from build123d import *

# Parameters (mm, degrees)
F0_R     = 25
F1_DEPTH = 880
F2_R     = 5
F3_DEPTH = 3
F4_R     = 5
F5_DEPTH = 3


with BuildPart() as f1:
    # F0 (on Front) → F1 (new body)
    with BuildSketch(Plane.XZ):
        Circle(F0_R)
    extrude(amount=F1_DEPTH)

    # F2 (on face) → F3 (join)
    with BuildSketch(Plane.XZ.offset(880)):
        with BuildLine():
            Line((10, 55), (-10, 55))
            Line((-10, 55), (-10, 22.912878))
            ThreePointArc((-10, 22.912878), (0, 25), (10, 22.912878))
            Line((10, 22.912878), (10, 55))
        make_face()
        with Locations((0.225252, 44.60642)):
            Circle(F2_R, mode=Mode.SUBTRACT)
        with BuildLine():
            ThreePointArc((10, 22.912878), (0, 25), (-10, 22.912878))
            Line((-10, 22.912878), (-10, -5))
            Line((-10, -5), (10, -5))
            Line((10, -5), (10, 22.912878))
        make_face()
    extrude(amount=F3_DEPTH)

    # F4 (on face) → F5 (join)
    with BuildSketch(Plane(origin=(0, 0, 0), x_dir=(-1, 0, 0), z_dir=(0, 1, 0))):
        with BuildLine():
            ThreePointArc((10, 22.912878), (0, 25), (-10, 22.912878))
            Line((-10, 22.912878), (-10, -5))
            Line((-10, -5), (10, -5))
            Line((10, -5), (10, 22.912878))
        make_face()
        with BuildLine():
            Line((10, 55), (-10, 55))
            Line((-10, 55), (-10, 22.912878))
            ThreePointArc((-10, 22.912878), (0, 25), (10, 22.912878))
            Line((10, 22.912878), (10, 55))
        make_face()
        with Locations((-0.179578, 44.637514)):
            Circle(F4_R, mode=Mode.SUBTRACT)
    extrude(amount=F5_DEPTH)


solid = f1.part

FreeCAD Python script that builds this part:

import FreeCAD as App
import Part
import Sketcher
from FreeCAD import Vector
Q = App.Units.Quantity

doc = App.newDocument("Part")
body = doc.addObject("PartDesign::Body", "Body")

sketch1 = body.newObject("Sketcher::SketchObject", "Sketch")
sketch1.AttachmentSupport = (doc.getObject("XZ_Plane"), [""])
sketch1.MapMode = "FlatFace"
sketch1.addGeometry(Part.Circle(Vector(0, 0, 0), Vector(0, 0, 1), 25), False)
sketch1.addConstraint([
    Sketcher.Constraint("Coincident", 0, 3, -1, 1),
    Sketcher.Constraint("Diameter", 0, Q("50 mm")),
])
pad1 = body.newObject("PartDesign::Pad", "Pad")
pad1.Profile = sketch1
pad1.Length = 880

sketch2 = body.newObject("Sketcher::SketchObject", "Sketch001")
sketch2.AttachmentSupport = (doc.getObject("XZ_Plane"), [""])
sketch2.MapMode = "FlatFace"
sketch2.AttachmentOffset = App.Placement(Vector(0, 0, 880), App.Rotation())
sketch2.addGeometry([
    Part.LineSegment(Vector(10, 55, 0), Vector(-10, 55, 0)),
    Part.LineSegment(Vector(-10, 55, 0), Vector(-10, -5, 0)),
    Part.LineSegment(Vector(-10, -5, 0), Vector(10, -5, 0)),
    Part.LineSegment(Vector(10, -5, 0), Vector(10, 55, 0)),
    Part.Circle(Vector(0.225252, 44.60642, 0), Vector(0, 0, 1), 5),
], False)
sketch2.addConstraint([
    Sketcher.Constraint("Coincident", 0, 2, 1, 1),
    Sketcher.Constraint("Coincident", 1, 2, 2, 1),
    Sketcher.Constraint("Coincident", 2, 2, 3, 1),
    Sketcher.Constraint("Coincident", 3, 2, 0, 1),
    Sketcher.Constraint("Horizontal", 0),
    Sketcher.Constraint("Vertical", 1),
    Sketcher.Constraint("Horizontal", 2),
    Sketcher.Constraint("Vertical", 3),
    Sketcher.Constraint("Diameter", 4, Q("10 mm")),
    Sketcher.Constraint("DistanceX", 0, 2, 0, 1, Q("20 mm")),
    Sketcher.Constraint("DistanceY", 1, 2, 1, 1, Q("60 mm")),
    Sketcher.Constraint("DistanceX", 0, 2, -1, 1, Q("10 mm")),
    Sketcher.Constraint("DistanceY", -1, 1, 0, 2, Q("55 mm")),
    Sketcher.Constraint("DistanceY", -1, 1, 4, 3, Q("44.60642 mm")),
    Sketcher.Constraint("DistanceX", 0, 2, 4, 3, Q("10.225252 mm")),
])
pad2 = body.newObject("PartDesign::Pad", "Pad001")
pad2.Profile = sketch2
pad2.Length = 3

sketch3 = body.newObject("Sketcher::SketchObject", "Sketch002")
sketch3.AttachmentSupport = (doc.getObject("XZ_Plane"), [""])
sketch3.MapMode = "FlatFace"
sketch3.addGeometry([
    Part.LineSegment(Vector(10, -5, 0), Vector(-10, -5, 0)),
    Part.LineSegment(Vector(-10, -5, 0), Vector(-10, 55, 0)),
    Part.LineSegment(Vector(-10, 55, 0), Vector(10, 55, 0)),
    Part.LineSegment(Vector(10, 55, 0), Vector(10, -5, 0)),
    Part.Circle(Vector(0.179578, 44.637514, 0), Vector(0, 0, 1), 5),
], False)
sketch3.addConstraint([
    Sketcher.Constraint("Coincident", 0, 2, 1, 1),
    Sketcher.Constraint("Coincident", 1, 2, 2, 1),
    Sketcher.Constraint("Coincident", 2, 2, 3, 1),
    Sketcher.Constraint("Coincident", 3, 2, 0, 1),
    Sketcher.Constraint("Horizontal", 0),
    Sketcher.Constraint("Vertical", 1),
    Sketcher.Constraint("Horizontal", 2),
    Sketcher.Constraint("Vertical", 3),
    Sketcher.Constraint("Diameter", 4, Q("10 mm")),
    Sketcher.Constraint("DistanceX", 0, 2, 0, 1, Q("20 mm")),
    Sketcher.Constraint("DistanceY", 1, 1, 1, 2, Q("60 mm")),
    Sketcher.Constraint("DistanceX", 0, 2, -1, 1, Q("10 mm")),
    Sketcher.Constraint("DistanceY", 0, 2, -1, 1, Q("5 mm")),
    Sketcher.Constraint("DistanceX", -1, 1, 4, 3, Q("0.179578 mm")),
    Sketcher.Constraint("DistanceY", -1, 1, 4, 3, Q("44.637514 mm")),
])
pad3 = body.newObject("PartDesign::Pad", "Pad002")
pad3.Profile = sketch3
pad3.Length = 3
pad3.Reversed = True

doc.recompute()
